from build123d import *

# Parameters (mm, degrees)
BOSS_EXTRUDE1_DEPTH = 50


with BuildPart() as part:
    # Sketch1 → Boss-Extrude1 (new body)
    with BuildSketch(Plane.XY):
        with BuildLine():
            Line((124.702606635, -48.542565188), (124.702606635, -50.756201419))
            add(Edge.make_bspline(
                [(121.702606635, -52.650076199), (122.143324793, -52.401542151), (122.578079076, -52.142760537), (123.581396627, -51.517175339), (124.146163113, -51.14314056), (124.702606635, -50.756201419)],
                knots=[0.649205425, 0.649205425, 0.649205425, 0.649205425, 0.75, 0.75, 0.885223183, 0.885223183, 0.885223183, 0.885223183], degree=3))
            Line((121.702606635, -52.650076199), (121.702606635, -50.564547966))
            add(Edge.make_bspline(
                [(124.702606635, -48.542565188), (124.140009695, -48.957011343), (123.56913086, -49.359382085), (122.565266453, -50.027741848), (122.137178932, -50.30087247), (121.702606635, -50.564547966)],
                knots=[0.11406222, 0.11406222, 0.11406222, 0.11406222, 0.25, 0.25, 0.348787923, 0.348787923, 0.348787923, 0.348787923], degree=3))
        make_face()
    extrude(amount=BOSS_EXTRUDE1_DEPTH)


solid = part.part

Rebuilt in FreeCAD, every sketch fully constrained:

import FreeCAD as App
import Part
import Sketcher
from FreeCAD import Vector

doc = App.newDocument("Part")
body = doc.addObject("PartDesign::Body", "Body")

# Sketch on XY plane
sketch1 = body.newObject("Sketcher::SketchObject", "Sketch")
sketch1.AttachmentSupport = (doc.getObject("XY_Plane"), [""])
sketch1.MapMode = "FlatFace"
sketch1.addGeometry([
    Part.LineSegment(Vector(124.702607, -50.756201, 0), Vector(124.702607, -48.542565, 0)),
    Part.BSplineCurve([Vector(124.702607, -48.542565, 0), Vector(124.14001, -48.957011, 0), Vector(123.569131, -49.359382, 0), Vector(122.565266, -50.027742, 0), Vector(122.137179, -50.300872, 0), Vector(121.702607, -50.564548, 0)], [4, 2, 4], [0.11406222, 0.25, 0.348787923], False, 3, [1, 1, 1, 1, 1, 1], False),
    Part.LineSegment(Vector(121.702607, -50.564548, 0), Vector(121.702607, -52.650076, 0)),
    Part.BSplineCurve([Vector(121.702607, -52.650076, 0), Vector(122.143325, -52.401542, 0), Vector(122.578079, -52.142761, 0), Vector(123.581397, -51.517175, 0), Vector(124.146163, -51.143141, 0), Vector(124.702607, -50.756201, 0)], [4, 2, 4], [0.649205425, 0.75, 0.885223183], False, 3, [1, 1, 1, 1, 1, 1], False),
], False)
sketch1.addConstraint([
    Sketcher.Constraint("Block", 1),
    Sketcher.Constraint("Block", 3),
    Sketcher.Constraint("Coincident", 0, 2, 1, 1),
    Sketcher.Constraint("Coincident", 1, 2, 2, 1),
    Sketcher.Constraint("Coincident", 2, 2, 3, 1),
    Sketcher.Constraint("Coincident", 3, 2, 0, 1),
])
pad1 = body.newObject("PartDesign::Pad", "Pad")
pad1.Profile = sketch1
pad1.Length = 50

doc.recompute()
